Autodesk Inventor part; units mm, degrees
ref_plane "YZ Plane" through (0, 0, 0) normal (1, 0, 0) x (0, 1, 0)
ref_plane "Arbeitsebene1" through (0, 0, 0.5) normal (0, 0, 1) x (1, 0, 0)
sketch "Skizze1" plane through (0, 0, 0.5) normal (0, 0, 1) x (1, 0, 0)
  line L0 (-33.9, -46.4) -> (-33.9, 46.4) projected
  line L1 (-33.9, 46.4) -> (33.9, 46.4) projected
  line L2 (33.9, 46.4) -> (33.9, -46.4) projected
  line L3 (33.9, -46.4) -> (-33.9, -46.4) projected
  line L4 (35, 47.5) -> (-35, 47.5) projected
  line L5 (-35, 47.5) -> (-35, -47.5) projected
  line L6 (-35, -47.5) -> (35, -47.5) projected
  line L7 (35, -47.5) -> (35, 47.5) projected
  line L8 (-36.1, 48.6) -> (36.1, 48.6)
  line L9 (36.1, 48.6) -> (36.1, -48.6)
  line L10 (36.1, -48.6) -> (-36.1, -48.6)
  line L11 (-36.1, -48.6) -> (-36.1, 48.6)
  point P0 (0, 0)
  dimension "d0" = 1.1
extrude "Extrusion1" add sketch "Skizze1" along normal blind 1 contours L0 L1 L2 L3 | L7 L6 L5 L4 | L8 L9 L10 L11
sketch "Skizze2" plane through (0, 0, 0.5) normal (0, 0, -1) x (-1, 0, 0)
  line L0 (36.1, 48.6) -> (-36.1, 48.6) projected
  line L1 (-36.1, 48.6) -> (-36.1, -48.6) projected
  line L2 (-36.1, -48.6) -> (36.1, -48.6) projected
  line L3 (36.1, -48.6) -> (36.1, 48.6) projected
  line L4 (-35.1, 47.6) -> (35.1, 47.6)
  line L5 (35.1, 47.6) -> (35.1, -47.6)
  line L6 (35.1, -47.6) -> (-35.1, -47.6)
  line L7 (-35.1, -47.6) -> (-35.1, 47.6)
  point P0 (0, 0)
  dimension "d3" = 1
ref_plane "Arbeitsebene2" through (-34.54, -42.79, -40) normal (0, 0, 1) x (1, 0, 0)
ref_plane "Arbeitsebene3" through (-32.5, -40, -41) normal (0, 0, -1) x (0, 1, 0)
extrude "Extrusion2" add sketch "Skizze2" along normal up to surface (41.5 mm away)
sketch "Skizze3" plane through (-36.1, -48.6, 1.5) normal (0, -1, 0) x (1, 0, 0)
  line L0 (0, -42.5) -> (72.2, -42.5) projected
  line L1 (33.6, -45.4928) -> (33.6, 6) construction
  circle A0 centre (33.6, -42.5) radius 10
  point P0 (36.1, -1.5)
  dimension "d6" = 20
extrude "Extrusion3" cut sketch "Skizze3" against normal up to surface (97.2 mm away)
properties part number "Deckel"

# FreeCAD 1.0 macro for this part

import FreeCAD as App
import Part
import Sketcher
from FreeCAD import Vector
Q = App.Units.Quantity

doc = App.newDocument("Part")
body = doc.addObject("PartDesign::Body", "Body")

# Sketch on XY plane
sketch1 = body.newObject("Sketcher::SketchObject", "Sketch")
sketch1.AttachmentSupport = (doc.getObject("XY_Plane"), [""])
sketch1.MapMode = "FlatFace"
sketch1.AttachmentOffset = App.Placement(Vector(0, 0, 0.5), App.Rotation())
sketch1.addGeometry(Part.LineSegment(Vector(36, 49, 0), Vector(-36, 49, 0)), False)
sketch1.addGeometry(Part.LineSegment(Vector(-36, 49, 0), Vector(-36, -49, 0)), False)
sketch1.addGeometry(Part.LineSegment(Vector(-36, -49, 0), Vector(36, -49, 0)), False)
sketch1.addGeometry(Part.LineSegment(Vector(36, -49, 0), Vector(36, 49, 0)), False)
sketch1.addConstraint(Sketcher.Constraint("Coincident", 0, 2, 1, 1))
sketch1.addConstraint(Sketcher.Constraint("Coincident", 1, 2, 2, 1))
sketch1.addConstraint(Sketcher.Constraint("Coincident", 2, 2, 3, 1))
sketch1.addConstraint(Sketcher.Constraint("Coincident", 3, 2, 0, 1))
sketch1.addConstraint(Sketcher.Constraint("Horizontal", 0))
sketch1.addConstraint(Sketcher.Constraint("Vertical", 1))
sketch1.addConstraint(Sketcher.Constraint("Horizontal", 2))
sketch1.addConstraint(Sketcher.Constraint("Vertical", 3))
sketch1.addConstraint(Sketcher.Constraint("Symmetric", 0, 2, 2, 2, -1, 1))
sketch1.addConstraint(Sketcher.Constraint("DistanceX", 0, 2, 0, 1, Q("72.2 mm")))
sketch1.addConstraint(Sketcher.Constraint("DistanceY", 1, 2, 1, 1, Q("97.2 mm")))
pad1 = body.newObject("PartDesign::Pad", "Pad")
pad1.Profile = sketch1
pad1.Length = 1

# Sketch on XY plane
sketch2 = body.newObject("Sketcher::SketchObject", "Sketch001")
sketch2.AttachmentSupport = (doc.getObject("XY_Plane"), [""])
sketch2.MapMode = "FlatFace"
sketch2.AttachmentOffset = App.Placement(Vector(0, 0, 0.5), App.Rotation())
sketch2.addGeometry(Part.LineSegment(Vector(-36, -49, 0), Vector(-36, 49, 0)), False)
sketch2.addGeometry(Part.LineSegment(Vector(-36, 49, 0), Vector(36, 49, 0)), False)
sketch2.addGeometry(Part.LineSegment(Vector(36, 49, 0), Vector(36, -49, 0)), False)
sketch2.addGeometry(Part.LineSegment(Vector(36, -49, 0), Vector(-36, -49, 0)), False)
sketch2.addGeometry(Part.LineSegment(Vector(35, -48, 0), Vector(35, 48, 0)), False)
sketch2.addGeometry(Part.LineSegment(Vector(35, 48, 0), Vector(-35, 48, 0)), False)
sketch2.addGeometry(Part.LineSegment(Vector(-35, 48, 0), Vector(-35, -48, 0)), False)
sketch2.addGeometry(Part.LineSegment(Vector(-35, -48, 0), Vector(35, -48, 0)), False)
sketch2.addConstraint(Sketcher.Constraint("Coincident", 0, 2, 1, 1))
sketch2.addConstraint(Sketcher.Constraint("Coincident", 1, 2, 2, 1))
sketch2.addConstraint(Sketcher.Constraint("Coincident", 2, 2, 3, 1))
sketch2.addConstraint(Sketcher.Constraint("Coincident", 3, 2, 0, 1))
sketch2.addConstraint(Sketcher.Constraint("Coincident", 4, 2, 5, 1))
sketch2.addConstraint(Sketcher.Constraint("Coincident", 5, 2, 6, 1))
sketch2.addConstraint(Sketcher.Constraint("Coincident", 6, 2, 7, 1))
sketch2.addConstraint(Sketcher.Constraint("Coincident", 7, 2, 4, 1))
sketch2.addConstraint(Sketcher.Constraint("Vertical", 0))
sketch2.addConstraint(Sketcher.Constraint("Horizontal", 1))
sketch2.addConstraint(Sketcher.Constraint("Vertical", 2))
sketch2.addConstraint(Sketcher.Constraint("Horizontal", 3))
sketch2.addConstraint(Sketcher.Constraint("Vertical", 4))
sketch2.addConstraint(Sketcher.Constraint("Horizontal", 5))
sketch2.addConstraint(Sketcher.Constraint("Vertical", 6))
sketch2.addConstraint(Sketcher.Constraint("Horizontal", 7))
sketch2.addConstraint(Sketcher.Constraint("Symmetric", 0, 2, 2, 2, -1, 1))
sketch2.addConstraint(Sketcher.Constraint("Symmetric", 4, 2, 6, 2, -1, 1))
sketch2.addConstraint(Sketcher.Constraint("DistanceX", 4, 2, 1, 2, Q("1 mm")))
sketch2.addConstraint(Sketcher.Constraint("DistanceY", 4, 2, 1, 2, Q("1 mm")))
sketch2.addConstraint(Sketcher.Constraint("DistanceX", 1, 1, 1, 2, Q("72.2 mm")))
sketch2.addConstraint(Sketcher.Constraint("DistanceY", 0, 1, 0, 2, Q("97.2 mm")))
pad2 = body.newObject("PartDesign::Pad", "Pad001")
pad2.Profile = sketch2
pad2.Length = 41.5
pad2.Reversed = True

# Sketch on XZ plane
sketch3 = body.newObject("Sketcher::SketchObject", "Sketch002")
sketch3.AttachmentSupport = (doc.getObject("XZ_Plane"), [""])
sketch3.MapMode = "FlatFace"
sketch3.AttachmentOffset = App.Placement(Vector(0, 0, 48.6), App.Rotation())
sketch3.addGeometry(Part.Circle(Vector(-2, -41, 0), Vector(0, 0, 1), 10), False)
sketch3.addConstraint(Sketcher.Constraint("Diameter", 0, Q("20 mm")))
sketch3.addConstraint(Sketcher.Constraint("DistanceY", 0, 3, -1, 1, Q("41 mm")))
sketch3.addConstraint(Sketcher.Constraint("DistanceX", 0, 3, -1, 1, Q("2.5 mm")))
pocket1 = body.newObject("PartDesign::Pocket", "Pocket")
pocket1.Profile = sketch3
pocket1.Length = 97.2

doc.recompute()
